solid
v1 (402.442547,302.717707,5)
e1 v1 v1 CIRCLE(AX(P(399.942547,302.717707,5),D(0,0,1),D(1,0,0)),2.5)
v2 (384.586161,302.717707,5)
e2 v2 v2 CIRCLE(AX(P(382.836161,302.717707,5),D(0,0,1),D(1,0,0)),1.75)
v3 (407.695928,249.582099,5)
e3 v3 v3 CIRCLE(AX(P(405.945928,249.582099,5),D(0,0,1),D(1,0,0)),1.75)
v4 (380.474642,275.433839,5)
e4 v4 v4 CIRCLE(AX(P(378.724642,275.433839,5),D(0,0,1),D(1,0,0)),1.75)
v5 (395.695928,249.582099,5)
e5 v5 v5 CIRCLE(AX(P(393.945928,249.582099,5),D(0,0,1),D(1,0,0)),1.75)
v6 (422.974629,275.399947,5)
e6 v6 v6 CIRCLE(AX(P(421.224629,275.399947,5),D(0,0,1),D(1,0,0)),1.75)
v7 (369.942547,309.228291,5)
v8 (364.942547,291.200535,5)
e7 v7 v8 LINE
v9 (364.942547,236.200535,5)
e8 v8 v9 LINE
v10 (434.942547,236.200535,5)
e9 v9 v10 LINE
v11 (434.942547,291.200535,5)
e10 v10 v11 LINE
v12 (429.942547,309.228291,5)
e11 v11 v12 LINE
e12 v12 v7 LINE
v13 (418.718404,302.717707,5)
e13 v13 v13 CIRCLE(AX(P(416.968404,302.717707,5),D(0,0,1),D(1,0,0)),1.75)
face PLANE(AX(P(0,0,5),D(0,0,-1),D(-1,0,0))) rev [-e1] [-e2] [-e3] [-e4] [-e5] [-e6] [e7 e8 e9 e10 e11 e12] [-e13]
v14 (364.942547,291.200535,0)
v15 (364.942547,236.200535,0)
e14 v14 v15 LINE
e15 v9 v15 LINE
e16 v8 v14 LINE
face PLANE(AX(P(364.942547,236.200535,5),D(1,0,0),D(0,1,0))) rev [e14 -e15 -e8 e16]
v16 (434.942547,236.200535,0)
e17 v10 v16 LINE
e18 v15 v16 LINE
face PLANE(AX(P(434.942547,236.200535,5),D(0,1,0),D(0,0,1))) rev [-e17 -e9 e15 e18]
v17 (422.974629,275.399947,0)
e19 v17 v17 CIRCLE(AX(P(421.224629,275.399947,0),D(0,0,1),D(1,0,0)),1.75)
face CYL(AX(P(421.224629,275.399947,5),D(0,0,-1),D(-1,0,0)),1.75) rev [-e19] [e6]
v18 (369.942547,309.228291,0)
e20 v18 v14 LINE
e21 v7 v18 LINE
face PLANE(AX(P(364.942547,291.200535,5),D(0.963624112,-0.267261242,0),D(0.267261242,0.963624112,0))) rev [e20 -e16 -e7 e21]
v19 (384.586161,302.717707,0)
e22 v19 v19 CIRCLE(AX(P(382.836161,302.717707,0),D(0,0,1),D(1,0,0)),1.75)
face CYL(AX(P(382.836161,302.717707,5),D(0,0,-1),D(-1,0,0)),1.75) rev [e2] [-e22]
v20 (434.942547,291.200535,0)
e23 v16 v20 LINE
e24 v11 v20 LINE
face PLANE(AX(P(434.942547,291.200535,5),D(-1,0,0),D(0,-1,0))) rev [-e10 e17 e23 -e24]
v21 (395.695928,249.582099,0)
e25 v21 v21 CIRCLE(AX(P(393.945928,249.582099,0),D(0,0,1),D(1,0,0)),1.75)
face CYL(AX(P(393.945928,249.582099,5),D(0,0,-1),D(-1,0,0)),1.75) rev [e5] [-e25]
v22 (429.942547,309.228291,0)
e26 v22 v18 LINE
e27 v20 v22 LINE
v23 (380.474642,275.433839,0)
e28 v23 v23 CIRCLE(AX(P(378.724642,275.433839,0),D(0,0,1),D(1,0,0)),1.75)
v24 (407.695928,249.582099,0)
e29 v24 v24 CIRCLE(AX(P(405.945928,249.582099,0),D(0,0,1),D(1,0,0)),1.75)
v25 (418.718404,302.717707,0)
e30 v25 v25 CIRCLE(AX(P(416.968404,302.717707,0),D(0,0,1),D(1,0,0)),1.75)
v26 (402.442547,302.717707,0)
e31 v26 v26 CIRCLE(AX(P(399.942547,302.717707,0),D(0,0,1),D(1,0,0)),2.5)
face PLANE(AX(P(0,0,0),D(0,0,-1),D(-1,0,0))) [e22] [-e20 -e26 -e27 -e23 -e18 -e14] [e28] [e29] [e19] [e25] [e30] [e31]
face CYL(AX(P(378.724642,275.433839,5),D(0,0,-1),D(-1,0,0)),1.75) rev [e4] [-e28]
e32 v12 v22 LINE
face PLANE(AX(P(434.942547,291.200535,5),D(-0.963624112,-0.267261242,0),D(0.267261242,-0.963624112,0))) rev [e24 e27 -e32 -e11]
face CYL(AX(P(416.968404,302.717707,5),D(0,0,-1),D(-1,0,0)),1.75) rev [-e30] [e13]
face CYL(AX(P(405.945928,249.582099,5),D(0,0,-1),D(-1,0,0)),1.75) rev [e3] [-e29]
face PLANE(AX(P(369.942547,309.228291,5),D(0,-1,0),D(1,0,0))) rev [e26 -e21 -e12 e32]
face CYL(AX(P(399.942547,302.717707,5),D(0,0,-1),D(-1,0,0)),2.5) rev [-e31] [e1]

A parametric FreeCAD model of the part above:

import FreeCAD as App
import Part
import Sketcher

V = App.Vector
Q = App.Units.Quantity


def add_polygon(sketch, points):
    """Adds a closed chain of lines whose ends are joined by coincident constraints."""
    first, n = sketch.GeometryCount, len(points)
    for a, b in zip(points, points[1:] + points[:1]):
        sketch.addGeometry(Part.LineSegment(App.Vector(*a, 0), App.Vector(*b, 0)), False)
    for i in range(n):
        sketch.addConstraint(Sketcher.Constraint("Coincident", first + i, 2, first + (i + 1) % n, 1))

doc = App.newDocument("Part")
body = doc.addObject("PartDesign::Body", "Body")

# Sketch on XY plane
sketch1 = body.newObject("Sketcher::SketchObject", "Sketch")
sketch1.AttachmentSupport = (doc.getObject("XY_Plane"), [""])
sketch1.MapMode = "FlatFace"
add_polygon(sketch1, [(434.942547, 236.200535), (434.942547, 291.200535), (429.942547, 309.228291), (369.942547, 309.228291), (364.942547, 291.200535), (364.942547, 236.200535)])  # lines 0-5
sketch1.addGeometry(Part.Circle(V(405.945928, 249.582099, 0), V(0, 0, 1), 1.75), False)  # 6
sketch1.addGeometry(Part.Circle(V(421.224629, 275.399947, 0), V(0, 0, 1), 1.75), False)  # 7
sketch1.addGeometry(Part.Circle(V(393.945928, 249.582099, 0), V(0, 0, 1), 1.75), False)  # 8
sketch1.addGeometry(Part.Circle(V(378.724642, 275.433839, 0), V(0, 0, 1), 1.75), False)  # 9
sketch1.addGeometry(Part.Circle(V(416.968404, 302.717707, 0), V(0, 0, 1), 1.75), False)  # 10
sketch1.addGeometry(Part.Circle(V(399.942547, 302.717707, 0), V(0, 0, 1), 2.5), False)  # 11
sketch1.addGeometry(Part.Circle(V(382.836161, 302.717707, 0), V(0, 0, 1), 1.75), False)  # 12
sketch1.addConstraint([
    Sketcher.Constraint("Vertical", 0),
    Sketcher.Constraint("Horizontal", 2),
    Sketcher.Constraint("Vertical", 4),
    Sketcher.Constraint("Horizontal", 5),
    Sketcher.Constraint("Equal", 6, 7),
    Sketcher.Constraint("Equal", 7, 8),
    Sketcher.Constraint("Equal", 8, 9),
    Sketcher.Constraint("Equal", 9, 10),
    Sketcher.Constraint("Equal", 10, 12),
    Sketcher.Constraint("Horizontal", 6, 3, 8, 3),
    Sketcher.Constraint("Horizontal", 10, 3, 11, 3),
    Sketcher.Constraint("Horizontal", 11, 3, 12, 3),
    Sketcher.Constraint("Horizontal", 0, 2, 3, 2),
    Sketcher.Constraint("Equal", 1, 3),
    Sketcher.Constraint("Diameter", 11, Q("5 mm")),
    Sketcher.Constraint("Diameter", 6, Q("3.5 mm")),
    Sketcher.Constraint("DistanceX", 2, 2, 2, 1, Q("60 mm")),
    Sketcher.Constraint("DistanceX", 5, 1, 5, 2, Q("70 mm")),
    Sketcher.Constraint("DistanceY", 0, 1, 0, 2, Q("55 mm")),
    Sketcher.Constraint("DistanceX", 8, 3, 6, 3, Q("12 mm")),
    Sketcher.Constraint("DistanceX", 11, 3, 0, 2, Q("35 mm")),
    Sketcher.Constraint("DistanceY", -1, 1, 6, 3, Q("249.582099 mm")),
    Sketcher.Constraint("DistanceX", 6, 3, 7, 3, Q("15.278701 mm")),
    Sketcher.Constraint("DistanceX", -1, 1, 7, 3, Q("421.224629 mm")),
    Sketcher.Constraint("DistanceY", -1, 1, 9, 3, Q("275.433839 mm")),
    Sketcher.Constraint("DistanceX", -1, 1, 12, 3, Q("382.836161 mm")),
    Sketcher.Constraint("DistanceY", -1, 1, 1, 2, Q("309.228291 mm")),
    Sketcher.Constraint("DistanceY", 6, 3, 7, 3, Q("25.817848 mm")),
    Sketcher.Constraint("DistanceY", 7, 3, 10, 3, Q("27.31776 mm")),
    Sketcher.Constraint("DistanceX", 9, 3, 10, 3, Q("38.243761 mm")),
    Sketcher.Constraint("DistanceX", 11, 3, 7, 3, Q("21.282082 mm")),
    Sketcher.Constraint("DistanceX", 9, 3, 12, 3, Q("4.111518 mm")),
    Sketcher.Constraint("Distance", 1, Q("18.708287 mm")),
])
pad1 = body.newObject("PartDesign::Pad", "Pad")
pad1.Profile = sketch1
pad1.Length = 5

doc.recompute()
